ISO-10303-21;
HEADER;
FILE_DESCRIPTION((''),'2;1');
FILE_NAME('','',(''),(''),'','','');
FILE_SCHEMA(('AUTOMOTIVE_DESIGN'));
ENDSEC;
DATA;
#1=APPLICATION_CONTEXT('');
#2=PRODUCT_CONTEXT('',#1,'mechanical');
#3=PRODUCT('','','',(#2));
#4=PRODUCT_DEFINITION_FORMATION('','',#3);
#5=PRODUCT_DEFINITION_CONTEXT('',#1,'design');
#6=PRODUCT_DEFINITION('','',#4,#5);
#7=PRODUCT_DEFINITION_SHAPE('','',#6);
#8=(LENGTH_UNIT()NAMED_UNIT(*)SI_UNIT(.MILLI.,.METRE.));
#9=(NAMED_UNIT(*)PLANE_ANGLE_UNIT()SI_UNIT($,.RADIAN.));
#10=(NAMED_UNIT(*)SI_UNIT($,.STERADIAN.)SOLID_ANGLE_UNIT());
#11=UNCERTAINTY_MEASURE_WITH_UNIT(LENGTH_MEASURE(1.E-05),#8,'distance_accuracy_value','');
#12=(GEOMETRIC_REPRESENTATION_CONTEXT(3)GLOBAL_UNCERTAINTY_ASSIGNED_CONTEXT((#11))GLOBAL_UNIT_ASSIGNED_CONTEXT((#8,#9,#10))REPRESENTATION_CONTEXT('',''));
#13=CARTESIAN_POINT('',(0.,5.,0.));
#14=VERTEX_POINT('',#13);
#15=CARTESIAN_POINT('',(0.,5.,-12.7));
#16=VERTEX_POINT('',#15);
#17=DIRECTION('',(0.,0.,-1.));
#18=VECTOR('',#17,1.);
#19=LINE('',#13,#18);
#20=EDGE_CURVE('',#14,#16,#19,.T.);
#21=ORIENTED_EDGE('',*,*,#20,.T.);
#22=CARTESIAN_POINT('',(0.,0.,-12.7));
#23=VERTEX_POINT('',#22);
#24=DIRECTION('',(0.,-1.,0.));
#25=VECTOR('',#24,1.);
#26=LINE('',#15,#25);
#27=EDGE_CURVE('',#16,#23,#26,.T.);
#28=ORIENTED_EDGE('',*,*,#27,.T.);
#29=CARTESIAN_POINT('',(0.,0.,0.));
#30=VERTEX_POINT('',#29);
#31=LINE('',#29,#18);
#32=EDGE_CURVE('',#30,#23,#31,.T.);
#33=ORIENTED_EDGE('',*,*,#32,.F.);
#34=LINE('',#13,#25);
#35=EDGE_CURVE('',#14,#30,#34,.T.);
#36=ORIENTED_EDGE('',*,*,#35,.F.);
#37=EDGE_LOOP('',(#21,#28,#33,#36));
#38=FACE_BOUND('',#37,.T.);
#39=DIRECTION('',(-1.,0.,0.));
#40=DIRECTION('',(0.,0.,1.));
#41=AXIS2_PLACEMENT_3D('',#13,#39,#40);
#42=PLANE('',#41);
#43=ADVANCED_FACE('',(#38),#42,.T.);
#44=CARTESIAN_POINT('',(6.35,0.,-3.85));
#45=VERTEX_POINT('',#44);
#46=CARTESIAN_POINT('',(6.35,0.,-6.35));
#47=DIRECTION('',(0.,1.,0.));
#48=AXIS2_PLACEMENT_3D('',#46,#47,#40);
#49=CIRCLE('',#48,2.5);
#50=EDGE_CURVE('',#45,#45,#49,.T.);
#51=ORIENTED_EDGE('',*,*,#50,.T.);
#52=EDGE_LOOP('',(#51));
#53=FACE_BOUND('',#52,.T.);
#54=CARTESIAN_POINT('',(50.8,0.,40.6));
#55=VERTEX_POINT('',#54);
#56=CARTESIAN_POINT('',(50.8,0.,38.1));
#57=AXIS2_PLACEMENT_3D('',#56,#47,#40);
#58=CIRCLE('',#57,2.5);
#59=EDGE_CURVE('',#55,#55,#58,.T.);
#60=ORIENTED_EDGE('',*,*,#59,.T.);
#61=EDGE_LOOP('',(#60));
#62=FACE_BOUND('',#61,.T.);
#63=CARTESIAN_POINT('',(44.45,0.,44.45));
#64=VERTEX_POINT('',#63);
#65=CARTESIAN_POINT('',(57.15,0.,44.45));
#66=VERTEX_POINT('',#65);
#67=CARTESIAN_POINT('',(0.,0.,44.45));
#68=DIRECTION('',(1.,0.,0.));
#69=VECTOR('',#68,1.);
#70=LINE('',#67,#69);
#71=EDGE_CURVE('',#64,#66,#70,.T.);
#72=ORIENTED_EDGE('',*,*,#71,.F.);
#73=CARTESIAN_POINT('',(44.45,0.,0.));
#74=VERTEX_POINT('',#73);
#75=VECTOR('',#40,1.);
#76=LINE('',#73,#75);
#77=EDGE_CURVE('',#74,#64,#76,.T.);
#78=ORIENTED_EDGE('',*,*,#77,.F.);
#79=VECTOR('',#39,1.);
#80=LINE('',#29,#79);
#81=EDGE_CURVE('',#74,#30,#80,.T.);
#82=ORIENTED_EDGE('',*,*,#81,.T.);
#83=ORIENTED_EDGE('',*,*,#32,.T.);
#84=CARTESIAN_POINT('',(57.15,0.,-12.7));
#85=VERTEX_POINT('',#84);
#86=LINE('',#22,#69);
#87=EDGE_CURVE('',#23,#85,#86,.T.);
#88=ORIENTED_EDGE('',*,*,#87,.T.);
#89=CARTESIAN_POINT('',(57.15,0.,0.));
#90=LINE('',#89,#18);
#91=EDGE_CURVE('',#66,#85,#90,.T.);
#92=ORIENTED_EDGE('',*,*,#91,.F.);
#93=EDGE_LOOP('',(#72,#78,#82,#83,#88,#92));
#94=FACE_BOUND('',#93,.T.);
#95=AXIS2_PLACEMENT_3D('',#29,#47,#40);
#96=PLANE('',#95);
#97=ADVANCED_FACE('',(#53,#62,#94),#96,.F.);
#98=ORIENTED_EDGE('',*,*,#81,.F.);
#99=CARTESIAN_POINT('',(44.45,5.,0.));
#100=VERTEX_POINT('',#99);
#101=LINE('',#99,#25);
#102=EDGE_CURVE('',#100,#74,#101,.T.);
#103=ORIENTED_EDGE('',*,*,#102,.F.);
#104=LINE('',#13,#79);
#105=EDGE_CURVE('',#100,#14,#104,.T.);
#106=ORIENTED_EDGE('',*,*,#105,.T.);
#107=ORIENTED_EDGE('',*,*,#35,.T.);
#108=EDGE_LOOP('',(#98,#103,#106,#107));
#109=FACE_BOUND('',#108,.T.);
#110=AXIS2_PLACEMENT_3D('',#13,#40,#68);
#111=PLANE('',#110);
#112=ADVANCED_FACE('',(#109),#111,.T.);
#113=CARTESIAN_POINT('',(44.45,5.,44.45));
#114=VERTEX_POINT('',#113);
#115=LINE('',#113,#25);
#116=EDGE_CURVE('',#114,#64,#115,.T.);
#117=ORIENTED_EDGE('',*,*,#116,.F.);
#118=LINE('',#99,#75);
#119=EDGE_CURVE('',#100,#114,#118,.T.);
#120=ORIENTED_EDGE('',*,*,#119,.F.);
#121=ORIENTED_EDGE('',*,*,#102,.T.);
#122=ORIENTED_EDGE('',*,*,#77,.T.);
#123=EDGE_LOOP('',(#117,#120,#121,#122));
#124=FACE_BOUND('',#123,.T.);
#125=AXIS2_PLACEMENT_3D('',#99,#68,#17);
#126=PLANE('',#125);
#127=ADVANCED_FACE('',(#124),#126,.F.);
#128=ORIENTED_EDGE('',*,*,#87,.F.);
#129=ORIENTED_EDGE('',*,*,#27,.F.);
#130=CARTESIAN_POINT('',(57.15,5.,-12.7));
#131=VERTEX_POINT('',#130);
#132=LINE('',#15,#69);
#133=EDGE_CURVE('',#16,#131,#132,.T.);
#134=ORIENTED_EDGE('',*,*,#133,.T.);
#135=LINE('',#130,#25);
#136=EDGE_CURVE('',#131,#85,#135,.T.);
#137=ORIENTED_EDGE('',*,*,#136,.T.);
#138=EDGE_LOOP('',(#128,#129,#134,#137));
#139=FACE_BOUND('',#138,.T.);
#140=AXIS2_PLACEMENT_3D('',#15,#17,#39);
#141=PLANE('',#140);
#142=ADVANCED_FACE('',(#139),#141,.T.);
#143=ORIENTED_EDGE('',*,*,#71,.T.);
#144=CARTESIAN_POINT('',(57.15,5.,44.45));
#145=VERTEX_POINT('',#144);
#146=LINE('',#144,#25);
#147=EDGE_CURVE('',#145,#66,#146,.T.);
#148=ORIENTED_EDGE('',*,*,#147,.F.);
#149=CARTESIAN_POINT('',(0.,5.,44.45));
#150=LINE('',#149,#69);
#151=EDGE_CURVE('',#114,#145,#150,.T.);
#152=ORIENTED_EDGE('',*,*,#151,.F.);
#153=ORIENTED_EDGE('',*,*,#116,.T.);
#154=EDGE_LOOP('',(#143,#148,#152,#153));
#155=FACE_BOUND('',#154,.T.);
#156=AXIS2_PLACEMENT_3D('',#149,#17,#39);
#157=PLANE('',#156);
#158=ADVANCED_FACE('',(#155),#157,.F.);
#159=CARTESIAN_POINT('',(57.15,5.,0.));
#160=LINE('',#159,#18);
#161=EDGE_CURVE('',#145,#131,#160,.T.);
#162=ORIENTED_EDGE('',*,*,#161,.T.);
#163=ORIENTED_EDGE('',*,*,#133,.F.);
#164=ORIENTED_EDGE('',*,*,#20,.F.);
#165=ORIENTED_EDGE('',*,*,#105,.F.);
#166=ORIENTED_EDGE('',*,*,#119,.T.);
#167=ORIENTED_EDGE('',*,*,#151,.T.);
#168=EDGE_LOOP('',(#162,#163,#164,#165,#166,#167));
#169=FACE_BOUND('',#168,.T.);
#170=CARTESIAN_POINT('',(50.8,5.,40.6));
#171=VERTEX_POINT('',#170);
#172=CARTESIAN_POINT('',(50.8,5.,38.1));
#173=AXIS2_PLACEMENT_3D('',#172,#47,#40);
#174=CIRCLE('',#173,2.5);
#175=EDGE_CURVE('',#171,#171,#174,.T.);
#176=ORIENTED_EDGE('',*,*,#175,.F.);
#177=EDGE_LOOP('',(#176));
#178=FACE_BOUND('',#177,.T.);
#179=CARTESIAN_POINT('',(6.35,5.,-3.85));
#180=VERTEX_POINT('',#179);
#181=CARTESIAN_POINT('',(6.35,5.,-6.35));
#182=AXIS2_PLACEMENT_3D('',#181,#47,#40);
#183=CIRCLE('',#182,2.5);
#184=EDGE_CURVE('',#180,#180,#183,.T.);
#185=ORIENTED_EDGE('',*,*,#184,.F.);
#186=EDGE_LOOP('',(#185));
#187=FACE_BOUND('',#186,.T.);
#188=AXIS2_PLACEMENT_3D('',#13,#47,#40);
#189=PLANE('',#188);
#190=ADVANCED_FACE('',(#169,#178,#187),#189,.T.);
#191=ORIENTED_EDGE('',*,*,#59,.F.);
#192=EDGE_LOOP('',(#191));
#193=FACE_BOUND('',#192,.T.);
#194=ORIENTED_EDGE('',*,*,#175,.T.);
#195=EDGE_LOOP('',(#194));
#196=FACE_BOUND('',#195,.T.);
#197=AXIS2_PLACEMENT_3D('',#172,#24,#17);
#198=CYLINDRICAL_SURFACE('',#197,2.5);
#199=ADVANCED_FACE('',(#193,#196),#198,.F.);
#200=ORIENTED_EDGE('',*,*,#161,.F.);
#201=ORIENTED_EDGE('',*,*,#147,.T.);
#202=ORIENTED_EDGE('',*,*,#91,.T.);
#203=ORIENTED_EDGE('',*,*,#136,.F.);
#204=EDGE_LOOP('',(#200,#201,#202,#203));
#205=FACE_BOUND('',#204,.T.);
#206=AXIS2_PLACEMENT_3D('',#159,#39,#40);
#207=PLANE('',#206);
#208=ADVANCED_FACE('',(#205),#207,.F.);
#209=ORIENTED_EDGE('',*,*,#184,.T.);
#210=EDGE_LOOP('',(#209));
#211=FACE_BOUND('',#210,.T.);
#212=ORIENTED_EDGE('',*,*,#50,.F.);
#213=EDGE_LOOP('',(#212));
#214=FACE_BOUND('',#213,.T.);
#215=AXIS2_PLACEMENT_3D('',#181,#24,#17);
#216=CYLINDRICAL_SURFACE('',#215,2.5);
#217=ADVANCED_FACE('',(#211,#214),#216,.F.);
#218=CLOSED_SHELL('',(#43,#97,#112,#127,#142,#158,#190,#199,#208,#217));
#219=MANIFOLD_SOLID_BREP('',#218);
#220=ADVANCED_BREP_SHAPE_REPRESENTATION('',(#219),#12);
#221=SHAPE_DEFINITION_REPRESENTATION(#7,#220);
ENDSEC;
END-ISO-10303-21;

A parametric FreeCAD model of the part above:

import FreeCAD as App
import Part
import Sketcher
from FreeCAD import Vector
Q = App.Units.Quantity

doc = App.newDocument("Part")
body = doc.addObject("PartDesign::Body", "Body")

# Sketch on XZ plane
sketch1 = doc.addObject("Sketcher::SketchObject", "Sketch")
body.addObject(sketch1)
sketch1.AttachmentSupport = (doc.XZ_Plane, [""])
sketch1.MapMode = "FlatFace"
sketch1.addGeometry([
    Part.LineSegment(Vector(0, -12.7, 0), Vector(0, 0, 0)),  # 0
    Part.LineSegment(Vector(0, 0, 0), Vector(44.5, 0, 0)),  # 1
    Part.LineSegment(Vector(44.5, 0, 0), Vector(44.5, 44.5, 0)),  # 2
    Part.LineSegment(Vector(44.5, 44.5, 0), Vector(57.1, 44.5, 0)),  # 3
    Part.LineSegment(Vector(57.1, 44.5, 0), Vector(57.1, -12.7, 0)),  # 4
    Part.LineSegment(Vector(57.1, -12.7, 0), Vector(0, -12.7, 0)),  # 5
    Part.Circle(Vector(50.8, 38.1, 0), Vector(0, 0, 1), 2.5),  # 6
    Part.Circle(Vector(6.3, -6.3, 0), Vector(0, 0, 1), 2.5),  # 7
], False)
sketch1.addConstraint([
    Sketcher.Constraint("Coincident", 0, 2, 1, 1),
    Sketcher.Constraint("Coincident", 1, 2, 2, 1),
    Sketcher.Constraint("Coincident", 2, 2, 3, 1),
    Sketcher.Constraint("Coincident", 3, 2, 4, 1),
    Sketcher.Constraint("Coincident", 4, 2, 5, 1),
    Sketcher.Constraint("Coincident", 5, 2, 0, 1),
    Sketcher.Constraint("Vertical", 0),
    Sketcher.Constraint("Horizontal", 1),
    Sketcher.Constraint("Vertical", 2),
    Sketcher.Constraint("Horizontal", 3),
    Sketcher.Constraint("Vertical", 4),
    Sketcher.Constraint("Horizontal", 5),
    Sketcher.Constraint("Coincident", 0, 2, -1, 1),
    Sketcher.Constraint("Equal", 6, 7),
    Sketcher.Constraint("Equal", 3, 0),
    Sketcher.Constraint("Equal", 1, 2),
    Sketcher.Constraint("DistanceX", 3, 1, 3, 2, Q("0.5 in")),
    Sketcher.Constraint("DistanceX", -1, 1, 6, 3, Q("2 in")),
    Sketcher.Constraint("DistanceY", 7, 3, 2, 2, Q("2 in")),
    Sketcher.Constraint("DistanceX", 7, 3, 3, 2, Q("2 in")),
    Sketcher.Constraint("DistanceY", 4, 2, 6, 3, Q("2 in")),
    Sketcher.Constraint("DistanceX", 1, 1, 1, 2, Q("1.75 in")),
    Sketcher.Constraint("Diameter", 6, Q("5 mm")),
])
pad1 = doc.addObject("PartDesign::Pad", "Pad")
body.addObject(pad1)
pad1.Profile = sketch1
pad1.Length = 5
pad1.Reversed = True

doc.recompute()
